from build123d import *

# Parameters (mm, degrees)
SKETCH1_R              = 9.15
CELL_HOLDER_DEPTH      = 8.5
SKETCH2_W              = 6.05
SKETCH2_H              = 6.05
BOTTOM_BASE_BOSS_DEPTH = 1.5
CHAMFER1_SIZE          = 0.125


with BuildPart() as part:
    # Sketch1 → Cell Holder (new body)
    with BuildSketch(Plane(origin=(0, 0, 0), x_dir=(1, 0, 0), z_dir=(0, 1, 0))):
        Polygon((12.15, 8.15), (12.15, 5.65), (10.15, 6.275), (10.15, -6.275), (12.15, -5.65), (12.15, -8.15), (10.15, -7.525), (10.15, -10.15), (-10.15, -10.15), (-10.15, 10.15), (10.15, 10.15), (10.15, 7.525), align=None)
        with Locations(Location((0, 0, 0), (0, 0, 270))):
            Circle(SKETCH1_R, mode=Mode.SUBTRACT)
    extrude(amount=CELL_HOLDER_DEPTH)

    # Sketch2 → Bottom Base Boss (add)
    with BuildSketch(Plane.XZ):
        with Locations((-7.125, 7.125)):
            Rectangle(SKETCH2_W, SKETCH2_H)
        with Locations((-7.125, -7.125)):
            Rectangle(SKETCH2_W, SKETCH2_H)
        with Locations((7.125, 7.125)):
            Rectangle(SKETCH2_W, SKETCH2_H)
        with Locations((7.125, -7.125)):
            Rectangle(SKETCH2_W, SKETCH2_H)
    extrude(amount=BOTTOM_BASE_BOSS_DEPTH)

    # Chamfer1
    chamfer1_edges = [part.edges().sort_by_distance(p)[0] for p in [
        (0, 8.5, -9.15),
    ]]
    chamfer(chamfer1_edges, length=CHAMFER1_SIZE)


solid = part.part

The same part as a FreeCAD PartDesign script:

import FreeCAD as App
import Part
import Sketcher
from FreeCAD import Vector


def edges_at(feature, points):
    """Names of the edges that pass closest to the given points."""
    edges = feature.Shape.Edges
    near = lambda p: min(range(len(edges)), key=lambda i: edges[i].distToShape(Part.Vertex(*p))[0])
    return sorted({f"Edge{near(p) + 1}" for p in points})


def add_polygon(sketch, points):
    """Adds a closed chain of lines whose ends are joined by coincident constraints."""
    first, n = sketch.GeometryCount, len(points)
    for a, b in zip(points, points[1:] + points[:1]):
        sketch.addGeometry(Part.LineSegment(App.Vector(*a, 0), App.Vector(*b, 0)), False)
    for i in range(n):
        sketch.addConstraint(Sketcher.Constraint("Coincident", first + i, 2, first + (i + 1) % n, 1))

doc = App.newDocument("Part")
body = doc.addObject("PartDesign::Body", "Body")

# Sketch on XZ plane
sketch1 = body.newObject("Sketcher::SketchObject", "Sketch")
sketch1.AttachmentSupport = (doc.getObject("XZ_Plane"), [""])
sketch1.MapMode = "FlatFace"
add_polygon(sketch1, [(12.2, -5.7), (12.2, -8.2), (10.2, -7.5), (10.2, -10.2), (-10.2, -10.2), (-10.2, 10.2), (10.2, 10.2), (10.2, 7.5), (12.2, 8.2), (12.2, 5.7), (10.2, 6.3), (10.2, -6.3)])  # lines 0-11
sketch1.addGeometry(Part.Circle(Vector(0, 0, 0), Vector(0, 0, 1), 9.2), False)  # 12
sketch1.addConstraint([
    Sketcher.Constraint("Vertical", 0),
    Sketcher.Constraint("Vertical", 2),
    Sketcher.Constraint("Horizontal", 3),
    Sketcher.Constraint("Vertical", 4),
    Sketcher.Constraint("Horizontal", 5),
    Sketcher.Constraint("Vertical", 6),
    Sketcher.Constraint("Vertical", 8),
    Sketcher.Constraint("Vertical", 10),
    Sketcher.Constraint("Coincident", 12, 3, -1, 1),
    Sketcher.Constraint("Symmetric", 2, 2, 4, 2, -1, 1),
    Sketcher.Constraint("Symmetric", 1, 2, 6, 2, -1),
    Sketcher.Constraint("Symmetric", 0, 2, 7, 2, -1),
    Sketcher.Constraint("Parallel", 1, 9),
    Sketcher.Constraint("Parallel", 7, 11),
    Sketcher.Constraint("Vertical", 6, 2, 9, 2),
    Sketcher.Constraint("Equal", 5, 4),
    Sketcher.Constraint("Equal", 0, 8),
    Sketcher.Constraint("Diameter", 12, 18.3),
    Sketcher.Constraint("DistanceX", 3, 2, 3, 1, 20.3),
    Sketcher.Constraint("DistanceY", 0, 2, 0, 1, 2.5),
    Sketcher.Constraint("DistanceX", 1, 2, 0, 2, 2.0),
    Sketcher.Constraint("DistanceY", 2, 2, 0, 2, 2.0),
    Sketcher.Constraint("DistanceY", 10, 2, 10, 1, 12.55),
])
pad1 = body.newObject("PartDesign::Pad", "Pad")
pad1.Profile = sketch1
pad1.Length = 8.5
pad1.Reversed = True

# Sketch on XZ plane
sketch2 = body.newObject("Sketcher::SketchObject", "Sketch001")
sketch2.AttachmentSupport = (doc.getObject("XZ_Plane"), [""])
sketch2.MapMode = "FlatFace"
add_polygon(sketch2, [(-10, 10), (-10, 4), (-4, 4), (-4, 10)])  # lines 0-3
add_polygon(sketch2, [(-10, -4), (-10, -10), (-4, -10), (-4, -4)])  # lines 4-7
add_polygon(sketch2, [(4, 10), (4, 4), (10, 4), (10, 10)])  # lines 8-11
add_polygon(sketch2, [(4, -4), (4, -10), (10, -10), (10, -4)])  # lines 12-15
sketch2.addConstraint([
    Sketcher.Constraint("Vertical", 0),
    Sketcher.Constraint("Horizontal", 1),
    Sketcher.Constraint("Vertical", 2),
    Sketcher.Constraint("Horizontal", 3),
    Sketcher.Constraint("Vertical", 4),
    Sketcher.Constraint("Horizontal", 5),
    Sketcher.Constraint("Vertical", 6),
    Sketcher.Constraint("Horizontal", 7),
    Sketcher.Constraint("Vertical", 8),
    Sketcher.Constraint("Horizontal", 9),
    Sketcher.Constraint("Vertical", 10),
    Sketcher.Constraint("Horizontal", 11),
    Sketcher.Constraint("Vertical", 12),
    Sketcher.Constraint("Horizontal", 13),
    Sketcher.Constraint("Vertical", 14),
    Sketcher.Constraint("Horizontal", 15),
    Sketcher.Constraint("Symmetric", 6, 2, 8, 2, -1, 1),
    Sketcher.Constraint("Symmetric", 4, 2, 10, 2, -1, 1),
    Sketcher.Constraint("Symmetric", 2, 2, 12, 2, -1, 1),
    Sketcher.Constraint("Symmetric", 0, 2, 14, 2, -1, 1),
    Sketcher.Constraint("Symmetric", 1, 2, 8, 2, -2),
    Sketcher.Constraint("Symmetric", 3, 2, 10, 2, -2),
    Sketcher.Constraint("Equal", 15, 0),
    Sketcher.Constraint("DistanceX", 1, 1, 1, 2, 6.05),
    Sketcher.Constraint("DistanceY", -1, 1, 0, 2, 4.1),
    Sketcher.Constraint("DistanceX", 1, 2, -1, 1, 4.1),
])
pad2 = body.newObject("PartDesign::Pad", "Pad001")
pad2.Profile = sketch2
pad2.Length = 1.5
doc.recompute()

chamfer = body.newObject("PartDesign::Chamfer", "Chamfer")
chamfer.Base = (pad2, edges_at(pad2, [(0, 8.5, -9.15)]))
chamfer.Size = 0.125

doc.recompute()
